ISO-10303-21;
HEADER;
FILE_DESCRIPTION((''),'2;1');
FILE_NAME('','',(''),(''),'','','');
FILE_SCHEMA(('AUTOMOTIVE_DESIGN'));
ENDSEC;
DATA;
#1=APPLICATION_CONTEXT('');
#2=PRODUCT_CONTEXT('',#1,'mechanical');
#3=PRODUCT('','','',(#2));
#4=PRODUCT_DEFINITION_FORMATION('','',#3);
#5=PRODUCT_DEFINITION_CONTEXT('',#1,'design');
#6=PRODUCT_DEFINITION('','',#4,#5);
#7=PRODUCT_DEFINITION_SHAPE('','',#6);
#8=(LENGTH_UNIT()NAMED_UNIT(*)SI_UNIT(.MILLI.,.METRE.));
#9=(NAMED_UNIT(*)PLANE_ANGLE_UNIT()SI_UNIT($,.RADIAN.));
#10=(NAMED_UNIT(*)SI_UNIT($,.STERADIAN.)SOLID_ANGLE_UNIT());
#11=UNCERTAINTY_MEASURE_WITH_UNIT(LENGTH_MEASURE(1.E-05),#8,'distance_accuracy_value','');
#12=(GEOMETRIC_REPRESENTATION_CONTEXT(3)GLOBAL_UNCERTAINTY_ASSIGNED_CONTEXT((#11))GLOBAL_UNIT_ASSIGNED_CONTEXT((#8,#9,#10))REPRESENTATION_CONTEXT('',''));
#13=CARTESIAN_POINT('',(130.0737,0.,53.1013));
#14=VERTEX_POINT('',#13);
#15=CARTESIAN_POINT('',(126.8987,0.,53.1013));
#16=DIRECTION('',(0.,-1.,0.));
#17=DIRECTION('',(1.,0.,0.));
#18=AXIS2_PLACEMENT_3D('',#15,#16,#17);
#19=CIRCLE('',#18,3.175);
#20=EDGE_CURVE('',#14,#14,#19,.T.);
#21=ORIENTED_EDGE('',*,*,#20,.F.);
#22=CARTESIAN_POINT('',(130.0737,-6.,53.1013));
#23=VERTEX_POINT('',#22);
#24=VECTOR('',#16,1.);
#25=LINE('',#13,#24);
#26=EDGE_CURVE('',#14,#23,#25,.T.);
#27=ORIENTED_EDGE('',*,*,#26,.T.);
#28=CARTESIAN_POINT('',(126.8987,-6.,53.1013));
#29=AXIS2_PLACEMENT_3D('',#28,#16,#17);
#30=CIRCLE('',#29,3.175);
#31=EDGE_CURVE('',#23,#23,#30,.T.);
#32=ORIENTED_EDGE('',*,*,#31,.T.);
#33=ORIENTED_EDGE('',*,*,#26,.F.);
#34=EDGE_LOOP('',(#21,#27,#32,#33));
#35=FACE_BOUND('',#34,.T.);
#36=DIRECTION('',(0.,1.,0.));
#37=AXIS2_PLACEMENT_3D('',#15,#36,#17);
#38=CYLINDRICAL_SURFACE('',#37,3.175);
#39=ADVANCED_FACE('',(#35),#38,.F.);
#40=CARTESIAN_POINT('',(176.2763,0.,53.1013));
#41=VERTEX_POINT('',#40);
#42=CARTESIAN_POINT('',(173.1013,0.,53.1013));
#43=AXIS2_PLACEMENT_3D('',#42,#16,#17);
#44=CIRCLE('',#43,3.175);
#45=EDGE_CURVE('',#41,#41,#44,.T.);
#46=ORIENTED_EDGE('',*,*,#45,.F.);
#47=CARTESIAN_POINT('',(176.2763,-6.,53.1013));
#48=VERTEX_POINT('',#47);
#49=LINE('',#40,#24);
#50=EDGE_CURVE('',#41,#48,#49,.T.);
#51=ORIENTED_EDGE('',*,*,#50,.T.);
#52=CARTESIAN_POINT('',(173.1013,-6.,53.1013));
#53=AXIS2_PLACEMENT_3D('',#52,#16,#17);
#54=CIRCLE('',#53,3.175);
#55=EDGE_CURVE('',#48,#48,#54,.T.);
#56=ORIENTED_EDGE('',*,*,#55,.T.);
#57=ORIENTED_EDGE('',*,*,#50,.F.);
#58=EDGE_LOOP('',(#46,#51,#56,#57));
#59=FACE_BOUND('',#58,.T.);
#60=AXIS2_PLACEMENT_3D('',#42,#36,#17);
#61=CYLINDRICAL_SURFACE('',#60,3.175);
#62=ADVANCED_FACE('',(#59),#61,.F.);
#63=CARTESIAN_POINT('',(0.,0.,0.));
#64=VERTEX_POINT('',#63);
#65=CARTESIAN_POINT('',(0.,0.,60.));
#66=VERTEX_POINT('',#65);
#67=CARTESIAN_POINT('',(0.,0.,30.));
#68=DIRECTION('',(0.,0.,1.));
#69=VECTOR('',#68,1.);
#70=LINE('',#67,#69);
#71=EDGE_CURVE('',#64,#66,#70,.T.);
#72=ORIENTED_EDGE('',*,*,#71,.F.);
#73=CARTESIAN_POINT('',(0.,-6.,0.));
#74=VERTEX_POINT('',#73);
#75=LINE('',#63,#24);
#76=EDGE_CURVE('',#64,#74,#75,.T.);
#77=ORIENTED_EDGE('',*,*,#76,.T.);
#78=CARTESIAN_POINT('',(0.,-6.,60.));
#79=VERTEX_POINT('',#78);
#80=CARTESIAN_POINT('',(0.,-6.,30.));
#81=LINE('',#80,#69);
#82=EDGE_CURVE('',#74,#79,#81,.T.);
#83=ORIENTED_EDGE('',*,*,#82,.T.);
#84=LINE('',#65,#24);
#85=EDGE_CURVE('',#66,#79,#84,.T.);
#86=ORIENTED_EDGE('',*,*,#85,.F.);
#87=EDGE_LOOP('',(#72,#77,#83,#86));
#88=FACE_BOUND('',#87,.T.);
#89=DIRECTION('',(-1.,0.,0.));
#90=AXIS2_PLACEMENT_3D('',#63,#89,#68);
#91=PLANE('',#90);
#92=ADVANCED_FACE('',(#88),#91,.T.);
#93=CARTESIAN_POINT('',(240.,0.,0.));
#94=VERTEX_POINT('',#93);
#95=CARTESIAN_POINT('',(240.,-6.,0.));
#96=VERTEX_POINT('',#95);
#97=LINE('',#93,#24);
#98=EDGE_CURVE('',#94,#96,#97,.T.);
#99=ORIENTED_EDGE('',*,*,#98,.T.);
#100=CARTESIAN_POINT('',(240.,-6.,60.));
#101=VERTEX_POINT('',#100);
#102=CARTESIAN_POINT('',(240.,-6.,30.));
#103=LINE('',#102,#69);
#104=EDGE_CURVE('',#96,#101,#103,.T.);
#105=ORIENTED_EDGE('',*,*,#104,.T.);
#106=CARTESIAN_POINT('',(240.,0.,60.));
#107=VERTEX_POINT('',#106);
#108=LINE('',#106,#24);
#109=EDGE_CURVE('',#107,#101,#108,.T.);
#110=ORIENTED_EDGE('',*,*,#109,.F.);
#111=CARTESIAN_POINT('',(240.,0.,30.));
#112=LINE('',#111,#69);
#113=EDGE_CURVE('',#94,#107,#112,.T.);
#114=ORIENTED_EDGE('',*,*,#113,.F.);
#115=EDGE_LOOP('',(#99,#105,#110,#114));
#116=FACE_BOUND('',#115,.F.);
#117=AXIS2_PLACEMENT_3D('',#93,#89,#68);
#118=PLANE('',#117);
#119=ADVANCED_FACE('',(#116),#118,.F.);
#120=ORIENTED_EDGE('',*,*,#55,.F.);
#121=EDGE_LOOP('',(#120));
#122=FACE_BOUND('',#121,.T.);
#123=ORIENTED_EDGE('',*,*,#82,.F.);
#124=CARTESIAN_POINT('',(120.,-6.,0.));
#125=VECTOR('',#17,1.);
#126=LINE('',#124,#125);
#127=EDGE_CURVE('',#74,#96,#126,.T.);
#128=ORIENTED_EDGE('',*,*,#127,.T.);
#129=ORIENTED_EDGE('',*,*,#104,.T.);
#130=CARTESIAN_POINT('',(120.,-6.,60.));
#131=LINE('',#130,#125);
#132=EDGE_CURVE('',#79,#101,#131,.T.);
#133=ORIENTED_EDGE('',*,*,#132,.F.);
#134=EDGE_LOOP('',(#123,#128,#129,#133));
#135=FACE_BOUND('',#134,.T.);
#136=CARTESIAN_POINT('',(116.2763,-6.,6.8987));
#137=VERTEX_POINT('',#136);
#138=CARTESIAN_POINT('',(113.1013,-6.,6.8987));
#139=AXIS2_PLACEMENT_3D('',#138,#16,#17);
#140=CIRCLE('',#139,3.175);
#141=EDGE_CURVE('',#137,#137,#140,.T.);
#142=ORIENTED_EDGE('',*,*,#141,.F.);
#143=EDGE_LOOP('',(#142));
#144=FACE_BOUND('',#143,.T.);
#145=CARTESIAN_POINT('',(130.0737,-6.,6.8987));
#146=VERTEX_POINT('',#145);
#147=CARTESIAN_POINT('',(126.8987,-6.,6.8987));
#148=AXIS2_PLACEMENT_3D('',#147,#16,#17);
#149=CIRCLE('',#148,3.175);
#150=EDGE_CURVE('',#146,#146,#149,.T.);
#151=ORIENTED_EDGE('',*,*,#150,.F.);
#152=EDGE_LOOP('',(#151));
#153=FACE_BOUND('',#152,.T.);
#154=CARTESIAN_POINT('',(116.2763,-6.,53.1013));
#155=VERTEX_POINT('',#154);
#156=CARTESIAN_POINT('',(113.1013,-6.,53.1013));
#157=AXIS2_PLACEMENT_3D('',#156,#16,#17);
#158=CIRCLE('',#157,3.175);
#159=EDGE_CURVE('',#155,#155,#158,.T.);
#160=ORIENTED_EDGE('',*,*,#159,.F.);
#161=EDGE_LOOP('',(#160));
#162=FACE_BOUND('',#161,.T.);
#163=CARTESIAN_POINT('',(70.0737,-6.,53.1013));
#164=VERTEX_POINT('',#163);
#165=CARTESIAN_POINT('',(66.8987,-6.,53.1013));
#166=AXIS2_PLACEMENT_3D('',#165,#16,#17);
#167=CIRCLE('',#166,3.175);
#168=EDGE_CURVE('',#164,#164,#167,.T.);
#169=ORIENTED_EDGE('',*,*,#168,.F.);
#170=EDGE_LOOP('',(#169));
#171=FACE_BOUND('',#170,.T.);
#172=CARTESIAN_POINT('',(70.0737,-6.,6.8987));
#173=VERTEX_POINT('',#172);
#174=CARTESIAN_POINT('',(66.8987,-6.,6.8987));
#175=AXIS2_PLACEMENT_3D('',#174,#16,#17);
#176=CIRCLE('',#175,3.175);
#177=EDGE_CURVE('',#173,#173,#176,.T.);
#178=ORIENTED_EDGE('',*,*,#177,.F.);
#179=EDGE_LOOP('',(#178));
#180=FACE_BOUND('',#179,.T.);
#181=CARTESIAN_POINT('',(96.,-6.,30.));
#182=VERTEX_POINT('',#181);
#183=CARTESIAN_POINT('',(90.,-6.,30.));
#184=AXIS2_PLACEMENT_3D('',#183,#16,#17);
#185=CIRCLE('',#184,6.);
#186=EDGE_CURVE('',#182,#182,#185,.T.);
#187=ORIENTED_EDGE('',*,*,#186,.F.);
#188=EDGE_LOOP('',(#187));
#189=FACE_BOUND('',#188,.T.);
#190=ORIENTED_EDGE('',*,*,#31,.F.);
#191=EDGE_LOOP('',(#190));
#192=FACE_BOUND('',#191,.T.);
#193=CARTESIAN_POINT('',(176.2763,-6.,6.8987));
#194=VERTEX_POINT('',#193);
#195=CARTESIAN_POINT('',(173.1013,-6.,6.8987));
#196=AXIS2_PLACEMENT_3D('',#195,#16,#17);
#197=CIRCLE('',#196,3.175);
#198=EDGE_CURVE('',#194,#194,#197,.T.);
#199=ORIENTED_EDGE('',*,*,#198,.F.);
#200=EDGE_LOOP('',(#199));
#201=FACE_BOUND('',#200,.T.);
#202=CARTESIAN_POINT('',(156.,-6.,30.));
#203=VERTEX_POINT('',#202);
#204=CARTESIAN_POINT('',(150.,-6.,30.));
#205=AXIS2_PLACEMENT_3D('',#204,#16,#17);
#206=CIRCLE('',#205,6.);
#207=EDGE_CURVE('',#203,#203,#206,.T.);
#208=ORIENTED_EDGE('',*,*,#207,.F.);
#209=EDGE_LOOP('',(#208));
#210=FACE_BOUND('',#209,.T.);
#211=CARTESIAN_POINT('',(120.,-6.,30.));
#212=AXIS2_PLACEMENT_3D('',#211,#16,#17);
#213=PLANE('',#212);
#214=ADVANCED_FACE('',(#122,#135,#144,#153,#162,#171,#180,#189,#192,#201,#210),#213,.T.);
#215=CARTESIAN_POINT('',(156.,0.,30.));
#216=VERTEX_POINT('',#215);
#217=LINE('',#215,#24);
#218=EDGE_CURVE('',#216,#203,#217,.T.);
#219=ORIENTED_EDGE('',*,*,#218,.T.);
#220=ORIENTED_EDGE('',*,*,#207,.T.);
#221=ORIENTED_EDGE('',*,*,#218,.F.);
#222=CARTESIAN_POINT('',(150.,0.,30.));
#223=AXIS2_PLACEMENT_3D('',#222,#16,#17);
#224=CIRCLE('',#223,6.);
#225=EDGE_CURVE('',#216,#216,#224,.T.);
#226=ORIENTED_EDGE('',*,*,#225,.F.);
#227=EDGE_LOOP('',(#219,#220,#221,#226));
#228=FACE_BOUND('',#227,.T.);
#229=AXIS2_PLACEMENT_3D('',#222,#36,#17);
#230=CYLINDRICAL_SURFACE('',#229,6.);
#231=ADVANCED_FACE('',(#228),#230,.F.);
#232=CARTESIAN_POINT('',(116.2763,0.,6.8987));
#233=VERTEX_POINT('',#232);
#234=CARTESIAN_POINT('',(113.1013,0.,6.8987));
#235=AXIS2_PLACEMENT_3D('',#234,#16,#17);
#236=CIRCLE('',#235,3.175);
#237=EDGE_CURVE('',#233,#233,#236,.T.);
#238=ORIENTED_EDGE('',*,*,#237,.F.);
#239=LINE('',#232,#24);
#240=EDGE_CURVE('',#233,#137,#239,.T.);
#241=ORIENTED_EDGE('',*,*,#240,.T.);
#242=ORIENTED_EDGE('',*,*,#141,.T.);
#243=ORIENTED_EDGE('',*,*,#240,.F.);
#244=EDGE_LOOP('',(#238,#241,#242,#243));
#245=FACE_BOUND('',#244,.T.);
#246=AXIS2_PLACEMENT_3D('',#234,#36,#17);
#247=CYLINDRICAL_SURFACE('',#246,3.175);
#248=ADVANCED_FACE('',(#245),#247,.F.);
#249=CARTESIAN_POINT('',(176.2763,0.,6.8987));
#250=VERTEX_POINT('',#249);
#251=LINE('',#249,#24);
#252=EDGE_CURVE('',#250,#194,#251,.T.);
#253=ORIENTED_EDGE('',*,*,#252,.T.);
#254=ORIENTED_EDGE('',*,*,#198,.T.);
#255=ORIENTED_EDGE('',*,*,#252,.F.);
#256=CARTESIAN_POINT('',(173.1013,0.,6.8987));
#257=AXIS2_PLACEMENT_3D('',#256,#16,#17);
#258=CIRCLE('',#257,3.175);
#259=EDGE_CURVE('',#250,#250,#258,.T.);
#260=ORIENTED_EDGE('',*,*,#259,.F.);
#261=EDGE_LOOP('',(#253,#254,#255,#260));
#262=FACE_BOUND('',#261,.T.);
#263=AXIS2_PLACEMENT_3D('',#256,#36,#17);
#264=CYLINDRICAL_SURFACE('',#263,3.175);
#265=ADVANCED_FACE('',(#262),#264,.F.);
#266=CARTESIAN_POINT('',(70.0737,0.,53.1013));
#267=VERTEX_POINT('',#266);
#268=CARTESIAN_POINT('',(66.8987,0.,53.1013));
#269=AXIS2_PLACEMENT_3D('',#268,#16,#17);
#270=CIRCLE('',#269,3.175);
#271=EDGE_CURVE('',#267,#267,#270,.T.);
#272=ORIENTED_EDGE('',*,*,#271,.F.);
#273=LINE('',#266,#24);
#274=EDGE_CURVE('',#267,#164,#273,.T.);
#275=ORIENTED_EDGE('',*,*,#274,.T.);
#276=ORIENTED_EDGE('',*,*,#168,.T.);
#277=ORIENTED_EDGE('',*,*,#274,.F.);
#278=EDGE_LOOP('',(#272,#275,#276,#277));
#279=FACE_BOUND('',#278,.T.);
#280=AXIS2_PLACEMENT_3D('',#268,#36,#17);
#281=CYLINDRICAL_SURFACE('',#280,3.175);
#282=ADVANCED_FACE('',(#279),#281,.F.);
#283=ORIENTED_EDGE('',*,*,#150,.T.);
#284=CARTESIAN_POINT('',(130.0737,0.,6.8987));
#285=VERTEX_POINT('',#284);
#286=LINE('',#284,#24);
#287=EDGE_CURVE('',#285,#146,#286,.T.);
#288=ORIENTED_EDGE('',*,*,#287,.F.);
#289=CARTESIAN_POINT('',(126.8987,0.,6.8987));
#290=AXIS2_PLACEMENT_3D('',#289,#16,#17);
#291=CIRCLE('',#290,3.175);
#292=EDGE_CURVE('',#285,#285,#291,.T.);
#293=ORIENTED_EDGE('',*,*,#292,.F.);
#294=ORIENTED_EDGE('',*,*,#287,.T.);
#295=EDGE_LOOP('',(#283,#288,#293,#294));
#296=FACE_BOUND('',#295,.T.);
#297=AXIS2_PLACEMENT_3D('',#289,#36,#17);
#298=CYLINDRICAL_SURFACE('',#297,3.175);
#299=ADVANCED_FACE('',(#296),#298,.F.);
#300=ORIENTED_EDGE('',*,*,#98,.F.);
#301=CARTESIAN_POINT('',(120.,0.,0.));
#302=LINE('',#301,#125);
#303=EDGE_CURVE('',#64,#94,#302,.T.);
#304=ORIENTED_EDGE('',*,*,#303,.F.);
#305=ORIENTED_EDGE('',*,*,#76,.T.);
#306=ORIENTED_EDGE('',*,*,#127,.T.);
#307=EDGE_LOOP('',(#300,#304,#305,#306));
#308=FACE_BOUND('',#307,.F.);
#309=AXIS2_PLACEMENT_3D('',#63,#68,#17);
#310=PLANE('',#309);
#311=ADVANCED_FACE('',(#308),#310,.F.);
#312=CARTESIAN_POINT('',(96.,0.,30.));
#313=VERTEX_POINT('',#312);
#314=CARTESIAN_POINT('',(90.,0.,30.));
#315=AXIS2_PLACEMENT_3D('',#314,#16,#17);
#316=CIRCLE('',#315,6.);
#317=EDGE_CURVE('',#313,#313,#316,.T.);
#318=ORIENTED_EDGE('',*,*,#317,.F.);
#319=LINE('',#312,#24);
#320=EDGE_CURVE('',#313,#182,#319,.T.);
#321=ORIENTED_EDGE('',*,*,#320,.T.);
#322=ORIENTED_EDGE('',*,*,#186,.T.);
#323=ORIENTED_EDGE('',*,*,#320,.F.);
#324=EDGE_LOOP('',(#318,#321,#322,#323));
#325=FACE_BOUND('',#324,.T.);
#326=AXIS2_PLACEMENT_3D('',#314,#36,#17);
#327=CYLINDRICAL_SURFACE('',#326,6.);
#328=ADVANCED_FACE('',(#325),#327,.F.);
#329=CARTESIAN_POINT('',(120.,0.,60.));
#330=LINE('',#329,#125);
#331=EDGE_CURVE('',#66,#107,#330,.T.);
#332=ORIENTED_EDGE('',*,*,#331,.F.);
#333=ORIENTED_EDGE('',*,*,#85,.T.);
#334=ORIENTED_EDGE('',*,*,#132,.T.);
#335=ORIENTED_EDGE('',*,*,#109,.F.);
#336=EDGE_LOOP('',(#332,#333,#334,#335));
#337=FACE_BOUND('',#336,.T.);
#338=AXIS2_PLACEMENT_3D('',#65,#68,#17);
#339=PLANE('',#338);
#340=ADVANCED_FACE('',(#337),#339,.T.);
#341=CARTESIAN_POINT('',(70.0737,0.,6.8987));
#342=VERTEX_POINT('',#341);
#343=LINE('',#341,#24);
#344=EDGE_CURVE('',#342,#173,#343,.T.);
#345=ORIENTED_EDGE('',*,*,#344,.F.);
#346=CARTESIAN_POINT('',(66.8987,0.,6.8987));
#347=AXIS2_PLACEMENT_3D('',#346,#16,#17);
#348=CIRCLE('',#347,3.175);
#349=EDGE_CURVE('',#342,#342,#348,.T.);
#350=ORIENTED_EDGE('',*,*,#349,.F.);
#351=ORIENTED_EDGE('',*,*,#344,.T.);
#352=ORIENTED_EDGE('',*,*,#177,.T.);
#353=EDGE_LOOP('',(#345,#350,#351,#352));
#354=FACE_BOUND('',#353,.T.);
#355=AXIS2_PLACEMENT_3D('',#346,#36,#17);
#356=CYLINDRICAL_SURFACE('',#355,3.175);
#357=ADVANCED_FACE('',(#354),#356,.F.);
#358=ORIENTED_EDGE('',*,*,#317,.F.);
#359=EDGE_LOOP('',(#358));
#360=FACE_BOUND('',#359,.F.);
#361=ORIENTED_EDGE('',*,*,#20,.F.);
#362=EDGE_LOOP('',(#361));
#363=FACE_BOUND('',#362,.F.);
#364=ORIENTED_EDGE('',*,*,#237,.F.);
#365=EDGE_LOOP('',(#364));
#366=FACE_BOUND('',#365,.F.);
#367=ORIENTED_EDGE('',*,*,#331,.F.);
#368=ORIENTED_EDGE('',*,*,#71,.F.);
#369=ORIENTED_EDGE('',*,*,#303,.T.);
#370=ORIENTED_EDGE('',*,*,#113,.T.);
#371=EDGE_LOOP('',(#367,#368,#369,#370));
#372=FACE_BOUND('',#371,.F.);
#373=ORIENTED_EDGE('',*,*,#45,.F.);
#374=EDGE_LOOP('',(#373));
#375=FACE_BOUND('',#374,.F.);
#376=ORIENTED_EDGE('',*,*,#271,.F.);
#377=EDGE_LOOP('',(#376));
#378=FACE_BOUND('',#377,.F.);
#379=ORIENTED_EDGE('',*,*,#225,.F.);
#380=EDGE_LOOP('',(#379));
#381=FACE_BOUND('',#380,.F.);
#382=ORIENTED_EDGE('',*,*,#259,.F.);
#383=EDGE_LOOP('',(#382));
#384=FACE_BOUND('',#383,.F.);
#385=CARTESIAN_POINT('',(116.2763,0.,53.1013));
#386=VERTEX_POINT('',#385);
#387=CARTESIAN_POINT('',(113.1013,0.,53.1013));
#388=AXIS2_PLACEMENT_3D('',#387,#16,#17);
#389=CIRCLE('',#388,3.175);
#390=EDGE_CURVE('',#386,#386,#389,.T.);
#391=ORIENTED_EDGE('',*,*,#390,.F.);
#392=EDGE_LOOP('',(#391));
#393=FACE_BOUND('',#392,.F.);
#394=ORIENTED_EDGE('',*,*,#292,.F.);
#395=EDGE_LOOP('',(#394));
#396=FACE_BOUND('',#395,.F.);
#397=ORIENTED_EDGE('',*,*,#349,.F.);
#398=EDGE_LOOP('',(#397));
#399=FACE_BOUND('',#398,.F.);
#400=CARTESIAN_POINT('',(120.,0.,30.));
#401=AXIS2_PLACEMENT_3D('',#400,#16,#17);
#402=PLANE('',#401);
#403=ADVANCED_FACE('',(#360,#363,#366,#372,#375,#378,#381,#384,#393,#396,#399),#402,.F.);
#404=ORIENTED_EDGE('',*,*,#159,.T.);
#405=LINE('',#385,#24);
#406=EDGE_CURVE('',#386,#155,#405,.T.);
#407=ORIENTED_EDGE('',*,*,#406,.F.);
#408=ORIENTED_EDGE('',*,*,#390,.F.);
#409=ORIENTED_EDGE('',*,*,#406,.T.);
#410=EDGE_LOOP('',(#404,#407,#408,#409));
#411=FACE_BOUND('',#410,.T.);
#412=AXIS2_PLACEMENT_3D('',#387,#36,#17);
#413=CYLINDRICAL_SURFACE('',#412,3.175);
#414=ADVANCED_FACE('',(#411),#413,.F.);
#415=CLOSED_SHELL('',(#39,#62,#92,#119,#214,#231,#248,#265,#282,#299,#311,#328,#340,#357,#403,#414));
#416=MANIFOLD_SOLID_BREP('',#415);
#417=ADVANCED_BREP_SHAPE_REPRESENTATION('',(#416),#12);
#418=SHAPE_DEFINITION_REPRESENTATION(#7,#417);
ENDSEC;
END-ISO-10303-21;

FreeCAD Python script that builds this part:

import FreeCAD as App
import Part
import Sketcher


def add_polygon(sketch, points):
    """Adds a closed chain of lines whose ends are joined by coincident constraints."""
    first, n = sketch.GeometryCount, len(points)
    for a, b in zip(points, points[1:] + points[:1]):
        sketch.addGeometry(Part.LineSegment(App.Vector(*a, 0), App.Vector(*b, 0)), False)
    for i in range(n):
        sketch.addConstraint(Sketcher.Constraint("Coincident", first + i, 2, first + (i + 1) % n, 1))

doc = App.newDocument("Part")
params = doc.addObject("Spreadsheet::Sheet", "Params")
for row, (alias, value) in enumerate([
    ("sketch1_diameter", "12 mm"),
    ("sketch1_diameter2", "6.35 mm"),
    ("sketch1_width", "240 mm"),
    ("sketch1_height", "60 mm"),
    ("pad1_length", "6 mm"),
], start=1):
    params.set(f"A{row}", alias)
    params.set(f"B{row}", "=" + value)
    params.setAlias(f"B{row}", alias)

body = doc.addObject("PartDesign::Body", "Body")

sketch1 = body.newObject("Sketcher::SketchObject", "Sketch")
sketch1.AttachmentSupport = (doc.getObject("XZ_Plane"), [""])
sketch1.MapMode = "FlatFace"
add_polygon(sketch1, [(0, 60), (0, 0), (240, 0), (240, 60)])
sketch1.addGeometry(Part.Circle(App.Vector(66.9, 6.9, 0), App.Vector(0, 0, 1), 3.2), False)
sketch1.addGeometry(Part.Circle(App.Vector(113.1, 6.9, 0), App.Vector(0, 0, 1), 3.2), False)
sketch1.addGeometry(Part.Circle(App.Vector(126.9, 6.9, 0), App.Vector(0, 0, 1), 3.2), False)
sketch1.addGeometry(Part.Circle(App.Vector(173.1, 6.9, 0), App.Vector(0, 0, 1), 3.2), False)
sketch1.addGeometry(Part.Circle(App.Vector(90, 30, 0), App.Vector(0, 0, 1), 6), False)
sketch1.addGeometry(Part.Circle(App.Vector(66.9, 53.1, 0), App.Vector(0, 0, 1), 3.2), False)
sketch1.addGeometry(Part.Circle(App.Vector(113.1, 53.1, 0), App.Vector(0, 0, 1), 3.2), False)
sketch1.addGeometry(Part.Circle(App.Vector(150, 30, 0), App.Vector(0, 0, 1), 6), False)
sketch1.addGeometry(Part.Circle(App.Vector(126.9, 53.1, 0), App.Vector(0, 0, 1), 3.2), False)
sketch1.addGeometry(Part.Circle(App.Vector(173.1, 53.1, 0), App.Vector(0, 0, 1), 3.2), False)
sketch1.addConstraint(Sketcher.Constraint("Vertical", 0))
sketch1.addConstraint(Sketcher.Constraint("Horizontal", 1))
sketch1.addConstraint(Sketcher.Constraint("Vertical", 2))
sketch1.addConstraint(Sketcher.Constraint("Horizontal", 3))
sketch1.addConstraint(Sketcher.Constraint("Coincident", 0, 2, -1, 1))
sketch1.addConstraint(Sketcher.Constraint("Equal", 4, 5))
sketch1.addConstraint(Sketcher.Constraint("Equal", 5, 6))
sketch1.addConstraint(Sketcher.Constraint("Equal", 6, 7))
sketch1.addConstraint(Sketcher.Constraint("Equal", 7, 9))
sketch1.addConstraint(Sketcher.Constraint("Equal", 9, 10))
sketch1.addConstraint(Sketcher.Constraint("Equal", 8, 11))
sketch1.addConstraint(Sketcher.Constraint("Equal", 10, 12))
sketch1.addConstraint(Sketcher.Constraint("Equal", 12, 13))
sketch1.addConstraint(Sketcher.Constraint("Horizontal", 4, 3, 5, 3))
sketch1.addConstraint(Sketcher.Constraint("Horizontal", 5, 3, 6, 3))
sketch1.addConstraint(Sketcher.Constraint("Horizontal", 6, 3, 7, 3))
sketch1.addConstraint(Sketcher.Constraint("Horizontal", 9, 3, 10, 3))
sketch1.addConstraint(Sketcher.Constraint("Horizontal", 8, 3, 11, 3))
sketch1.addConstraint(Sketcher.Constraint("Horizontal", 10, 3, 12, 3))
sketch1.addConstraint(Sketcher.Constraint("Horizontal", 12, 3, 13, 3))
sketch1.addConstraint(Sketcher.Constraint("Vertical", 4, 3, 9, 3))
sketch1.addConstraint(Sketcher.Constraint("Vertical", 5, 3, 10, 3))
sketch1.addConstraint(Sketcher.Constraint("Vertical", 6, 3, 12, 3))
sketch1.addConstraint(Sketcher.Constraint("Vertical", 7, 3, 13, 3))
sketch1.addConstraint(Sketcher.Constraint("Diameter", 8, 12.0))
sketch1.addConstraint(Sketcher.Constraint("Diameter", 4, 6.35))
sketch1.addConstraint(Sketcher.Constraint("DistanceX", 1, 1, 1, 2, 240.0))
sketch1.addConstraint(Sketcher.Constraint("DistanceY", 0, 2, 0, 1, 60.0))
sketch1.addConstraint(Sketcher.Constraint("DistanceX", -1, 1, 8, 3, 90.0))
sketch1.addConstraint(Sketcher.Constraint("DistanceY", -1, 1, 8, 3, 30.0))
sketch1.addConstraint(Sketcher.Constraint("DistanceX", -1, 1, 11, 3, 150.0))
sketch1.addConstraint(Sketcher.Constraint("DistanceX", 4, 3, 6, 3, 60.0))
sketch1.addConstraint(Sketcher.Constraint("DistanceX", 5, 3, 7, 3, 60.0))
sketch1.addConstraint(Sketcher.Constraint("DistanceX", -1, 1, 4, 3, 66.8987))
sketch1.addConstraint(Sketcher.Constraint("DistanceY", -1, 1, 4, 3, 6.8987))
sketch1.addConstraint(Sketcher.Constraint("DistanceX", -1, 1, 5, 3, 113.1013))
sketch1.addConstraint(Sketcher.Constraint("DistanceY", -1, 1, 9, 3, 53.1013))
sketch1.setExpression("Constraints[28]", "Params.sketch1_diameter")
sketch1.setExpression("Constraints[29]", "Params.sketch1_diameter2")
sketch1.setExpression("Constraints[30]", "Params.sketch1_width")
sketch1.setExpression("Constraints[31]", "Params.sketch1_height")
pad1 = body.newObject("PartDesign::Pad", "Pad")
pad1.Profile = sketch1
pad1.setExpression("Length", "Params.pad1_length")

doc.recompute()
